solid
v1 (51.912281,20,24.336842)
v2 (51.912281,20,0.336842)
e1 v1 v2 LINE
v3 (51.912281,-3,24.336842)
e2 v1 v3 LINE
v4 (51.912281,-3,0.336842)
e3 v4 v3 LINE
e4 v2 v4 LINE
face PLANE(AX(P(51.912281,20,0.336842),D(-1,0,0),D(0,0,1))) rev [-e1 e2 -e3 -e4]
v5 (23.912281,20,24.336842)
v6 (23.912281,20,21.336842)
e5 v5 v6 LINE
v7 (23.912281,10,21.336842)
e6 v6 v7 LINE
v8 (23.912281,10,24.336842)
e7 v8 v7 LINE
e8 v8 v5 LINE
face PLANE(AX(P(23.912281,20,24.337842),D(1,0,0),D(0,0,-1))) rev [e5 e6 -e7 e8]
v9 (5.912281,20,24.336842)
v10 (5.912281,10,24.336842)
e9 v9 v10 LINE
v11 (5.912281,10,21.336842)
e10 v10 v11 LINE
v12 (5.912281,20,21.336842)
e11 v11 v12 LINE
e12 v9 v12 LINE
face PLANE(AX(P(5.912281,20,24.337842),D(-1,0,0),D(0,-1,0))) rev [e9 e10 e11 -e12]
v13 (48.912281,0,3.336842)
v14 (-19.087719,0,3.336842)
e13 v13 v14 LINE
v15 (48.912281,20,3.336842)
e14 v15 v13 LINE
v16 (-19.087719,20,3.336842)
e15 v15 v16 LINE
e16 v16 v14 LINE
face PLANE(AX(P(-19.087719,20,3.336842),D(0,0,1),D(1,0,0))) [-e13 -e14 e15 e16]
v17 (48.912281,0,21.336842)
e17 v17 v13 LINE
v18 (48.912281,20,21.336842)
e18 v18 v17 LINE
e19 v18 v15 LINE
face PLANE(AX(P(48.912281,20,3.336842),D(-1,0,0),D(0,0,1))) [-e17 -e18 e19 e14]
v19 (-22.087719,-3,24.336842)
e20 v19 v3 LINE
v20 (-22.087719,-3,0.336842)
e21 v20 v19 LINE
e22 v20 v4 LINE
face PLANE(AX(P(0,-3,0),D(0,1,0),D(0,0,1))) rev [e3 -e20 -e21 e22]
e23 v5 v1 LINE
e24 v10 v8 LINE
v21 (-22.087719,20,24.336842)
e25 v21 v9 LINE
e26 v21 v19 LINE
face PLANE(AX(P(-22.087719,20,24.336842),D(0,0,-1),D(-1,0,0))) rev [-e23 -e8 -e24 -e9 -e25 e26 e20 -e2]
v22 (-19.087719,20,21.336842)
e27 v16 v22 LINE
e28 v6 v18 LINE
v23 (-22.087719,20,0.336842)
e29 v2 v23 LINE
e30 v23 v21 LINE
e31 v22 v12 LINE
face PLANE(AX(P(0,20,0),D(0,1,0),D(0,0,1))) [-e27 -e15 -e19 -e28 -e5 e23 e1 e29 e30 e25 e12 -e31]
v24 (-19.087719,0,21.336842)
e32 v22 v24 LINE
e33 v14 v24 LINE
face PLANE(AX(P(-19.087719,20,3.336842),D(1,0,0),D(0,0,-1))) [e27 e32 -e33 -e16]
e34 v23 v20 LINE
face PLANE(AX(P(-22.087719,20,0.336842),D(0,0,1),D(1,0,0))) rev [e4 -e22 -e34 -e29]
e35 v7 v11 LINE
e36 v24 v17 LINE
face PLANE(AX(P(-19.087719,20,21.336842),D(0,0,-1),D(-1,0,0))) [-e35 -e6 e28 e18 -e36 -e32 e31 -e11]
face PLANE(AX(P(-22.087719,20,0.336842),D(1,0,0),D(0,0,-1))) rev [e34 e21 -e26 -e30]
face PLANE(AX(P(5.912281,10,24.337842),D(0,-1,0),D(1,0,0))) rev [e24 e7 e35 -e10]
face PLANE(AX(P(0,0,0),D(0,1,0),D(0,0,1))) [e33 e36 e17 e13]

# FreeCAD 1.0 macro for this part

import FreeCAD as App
import Part
import Sketcher
from FreeCAD import Vector


def add_polygon(sketch, points):
    """Adds a closed chain of lines whose ends are joined by coincident constraints."""
    first, n = sketch.GeometryCount, len(points)
    for a, b in zip(points, points[1:] + points[:1]):
        sketch.addGeometry(Part.LineSegment(App.Vector(*a, 0), App.Vector(*b, 0)), False)
    for i in range(n):
        sketch.addConstraint(Sketcher.Constraint("Coincident", first + i, 2, first + (i + 1) % n, 1))

doc = App.newDocument("Part")
body = doc.addObject("PartDesign::Body", "Body")

# Sketch on XZ plane
sketch1 = body.newObject("Sketcher::SketchObject", "Sketch")
sketch1.AttachmentSupport = (doc.getObject("XZ_Plane"), [""])
sketch1.MapMode = "FlatFace"
add_polygon(sketch1, [(-22.087719, 0.336842), (-22.087719, 24.336842), (51.912281, 24.336842), (51.912281, 0.336842)])  # lines 0-3
add_polygon(sketch1, [(48.912281, 21.336842), (-19.087719, 21.336842), (-19.087719, 3.336842), (48.912281, 3.336842)])  # lines 4-7
sketch1.addConstraint([
    Sketcher.Constraint("Vertical", 0),
    Sketcher.Constraint("Horizontal", 1),
    Sketcher.Constraint("Vertical", 2),
    Sketcher.Constraint("Horizontal", 3),
    Sketcher.Constraint("Horizontal", 4),
    Sketcher.Constraint("Vertical", 5),
    Sketcher.Constraint("Horizontal", 6),
    Sketcher.Constraint("Vertical", 7),
    Sketcher.Constraint("DistanceX", 1, 1, 1, 2, 74.0),
    Sketcher.Constraint("DistanceX", 4, 2, 4, 1, 68.0),
    Sketcher.Constraint("DistanceY", 0, 1, 0, 2, 24.0),
    Sketcher.Constraint("DistanceY", 5, 2, 5, 1, 18.0),
    Sketcher.Constraint("DistanceX", 0, 2, 4, 2, 3.0),
    Sketcher.Constraint("DistanceY", 4, 2, 0, 2, 3.0),
    Sketcher.Constraint("DistanceX", 0, 2, -1, 1, 22.087719),
    Sketcher.Constraint("DistanceY", -1, 1, 0, 2, 24.336842),
])
pad1 = body.newObject("PartDesign::Pad", "Pad")
pad1.Profile = sketch1
pad1.Length = 20
pad1.Reversed = True

# Sketch on XZ plane
sketch2 = body.newObject("Sketcher::SketchObject", "Sketch001")
sketch2.AttachmentSupport = (doc.getObject("XZ_Plane"), [""])
sketch2.MapMode = "FlatFace"
add_polygon(sketch2, [(-22.087719, 0.336842), (-22.087719, 24.336842), (51.912281, 24.336842), (51.912281, 0.336842)])  # lines 0-3
sketch2.addConstraint([
    Sketcher.Constraint("Vertical", 0),
    Sketcher.Constraint("Horizontal", 1),
    Sketcher.Constraint("Vertical", 2),
    Sketcher.Constraint("Horizontal", 3),
    Sketcher.Constraint("DistanceX", 1, 1, 1, 2, 74.0),
    Sketcher.Constraint("DistanceY", 0, 1, 0, 2, 24.0),
    Sketcher.Constraint("DistanceX", 0, 2, -1, 1, 22.087719),
    Sketcher.Constraint("DistanceY", -1, 1, 0, 2, 24.336842),
])
pad2 = body.newObject("PartDesign::Pad", "Pad001")
pad2.Profile = sketch2
pad2.Length = 3

# Sketch on XY plane
sketch3 = body.newObject("Sketcher::SketchObject", "Sketch002")
sketch3.AttachmentSupport = (doc.getObject("XY_Plane"), [""])
sketch3.MapMode = "FlatFace"
sketch3.AttachmentOffset = App.Placement(Vector(0, 0, 21.336842), App.Rotation())
add_polygon(sketch3, [(23.912281, 20), (23.912281, 10), (5.912281, 10), (5.912281, 20)])  # lines 0-3
sketch3.addConstraint([
    Sketcher.Constraint("Vertical", 0),
    Sketcher.Constraint("Horizontal", 1),
    Sketcher.Constraint("Vertical", 2),
    Sketcher.Constraint("Horizontal", 3),
    Sketcher.Constraint("DistanceX", 1, 2, 1, 1, 18.0),
    Sketcher.Constraint("DistanceY", 0, 2, 0, 1, 10.0),
    Sketcher.Constraint("DistanceY", -1, 1, 0, 2, 10.0),
    Sketcher.Constraint("DistanceX", -1, 1, 0, 2, 23.912281),
])
pocket1 = body.newObject("PartDesign::Pocket", "Pocket")
pocket1.Profile = sketch3
pocket1.Type = "UpToFirst"
pocket1.Reversed = True

doc.recompute()
